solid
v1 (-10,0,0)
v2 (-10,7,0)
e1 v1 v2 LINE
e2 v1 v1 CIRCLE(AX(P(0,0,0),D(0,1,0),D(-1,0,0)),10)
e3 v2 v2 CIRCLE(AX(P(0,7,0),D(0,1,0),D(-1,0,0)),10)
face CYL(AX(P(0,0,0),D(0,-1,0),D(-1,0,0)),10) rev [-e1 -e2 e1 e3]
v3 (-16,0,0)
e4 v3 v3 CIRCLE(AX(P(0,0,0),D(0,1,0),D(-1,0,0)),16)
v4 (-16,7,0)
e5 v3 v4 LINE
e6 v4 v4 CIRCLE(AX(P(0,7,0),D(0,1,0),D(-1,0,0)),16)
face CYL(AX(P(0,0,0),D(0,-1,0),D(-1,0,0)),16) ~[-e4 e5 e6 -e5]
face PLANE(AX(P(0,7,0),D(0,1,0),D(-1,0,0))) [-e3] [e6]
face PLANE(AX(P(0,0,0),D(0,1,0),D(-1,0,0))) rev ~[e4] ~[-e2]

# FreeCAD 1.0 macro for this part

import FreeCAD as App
import Part
import Sketcher

V = App.Vector
Q = App.Units.Quantity

doc = App.newDocument("Part")
body = doc.addObject("PartDesign::Body", "Body")

# Sketch on XZ plane
sketch1 = body.newObject("Sketcher::SketchObject", "Sketch")
sketch1.AttachmentSupport = (doc.getObject("XZ_Plane"), [""])
sketch1.MapMode = "FlatFace"
sketch1.addGeometry([
    Part.Circle(V(0, 0, 0), V(0, 0, 1), 16),
    Part.Circle(V(0, 0, 0), V(0, 0, 1), 10),
], False)
sketch1.addConstraint([
    Sketcher.Constraint("Coincident", 0, 3, -1, 1),
    Sketcher.Constraint("Coincident", 1, 3, -1, 1),
    Sketcher.Constraint("Diameter", 0, Q("32 mm")),
    Sketcher.Constraint("Diameter", 1, Q("20 mm")),
])
pad1 = body.newObject("PartDesign::Pad", "Pad")
pad1.Profile = sketch1
pad1.Length = 7
pad1.Reversed = True

doc.recompute()
